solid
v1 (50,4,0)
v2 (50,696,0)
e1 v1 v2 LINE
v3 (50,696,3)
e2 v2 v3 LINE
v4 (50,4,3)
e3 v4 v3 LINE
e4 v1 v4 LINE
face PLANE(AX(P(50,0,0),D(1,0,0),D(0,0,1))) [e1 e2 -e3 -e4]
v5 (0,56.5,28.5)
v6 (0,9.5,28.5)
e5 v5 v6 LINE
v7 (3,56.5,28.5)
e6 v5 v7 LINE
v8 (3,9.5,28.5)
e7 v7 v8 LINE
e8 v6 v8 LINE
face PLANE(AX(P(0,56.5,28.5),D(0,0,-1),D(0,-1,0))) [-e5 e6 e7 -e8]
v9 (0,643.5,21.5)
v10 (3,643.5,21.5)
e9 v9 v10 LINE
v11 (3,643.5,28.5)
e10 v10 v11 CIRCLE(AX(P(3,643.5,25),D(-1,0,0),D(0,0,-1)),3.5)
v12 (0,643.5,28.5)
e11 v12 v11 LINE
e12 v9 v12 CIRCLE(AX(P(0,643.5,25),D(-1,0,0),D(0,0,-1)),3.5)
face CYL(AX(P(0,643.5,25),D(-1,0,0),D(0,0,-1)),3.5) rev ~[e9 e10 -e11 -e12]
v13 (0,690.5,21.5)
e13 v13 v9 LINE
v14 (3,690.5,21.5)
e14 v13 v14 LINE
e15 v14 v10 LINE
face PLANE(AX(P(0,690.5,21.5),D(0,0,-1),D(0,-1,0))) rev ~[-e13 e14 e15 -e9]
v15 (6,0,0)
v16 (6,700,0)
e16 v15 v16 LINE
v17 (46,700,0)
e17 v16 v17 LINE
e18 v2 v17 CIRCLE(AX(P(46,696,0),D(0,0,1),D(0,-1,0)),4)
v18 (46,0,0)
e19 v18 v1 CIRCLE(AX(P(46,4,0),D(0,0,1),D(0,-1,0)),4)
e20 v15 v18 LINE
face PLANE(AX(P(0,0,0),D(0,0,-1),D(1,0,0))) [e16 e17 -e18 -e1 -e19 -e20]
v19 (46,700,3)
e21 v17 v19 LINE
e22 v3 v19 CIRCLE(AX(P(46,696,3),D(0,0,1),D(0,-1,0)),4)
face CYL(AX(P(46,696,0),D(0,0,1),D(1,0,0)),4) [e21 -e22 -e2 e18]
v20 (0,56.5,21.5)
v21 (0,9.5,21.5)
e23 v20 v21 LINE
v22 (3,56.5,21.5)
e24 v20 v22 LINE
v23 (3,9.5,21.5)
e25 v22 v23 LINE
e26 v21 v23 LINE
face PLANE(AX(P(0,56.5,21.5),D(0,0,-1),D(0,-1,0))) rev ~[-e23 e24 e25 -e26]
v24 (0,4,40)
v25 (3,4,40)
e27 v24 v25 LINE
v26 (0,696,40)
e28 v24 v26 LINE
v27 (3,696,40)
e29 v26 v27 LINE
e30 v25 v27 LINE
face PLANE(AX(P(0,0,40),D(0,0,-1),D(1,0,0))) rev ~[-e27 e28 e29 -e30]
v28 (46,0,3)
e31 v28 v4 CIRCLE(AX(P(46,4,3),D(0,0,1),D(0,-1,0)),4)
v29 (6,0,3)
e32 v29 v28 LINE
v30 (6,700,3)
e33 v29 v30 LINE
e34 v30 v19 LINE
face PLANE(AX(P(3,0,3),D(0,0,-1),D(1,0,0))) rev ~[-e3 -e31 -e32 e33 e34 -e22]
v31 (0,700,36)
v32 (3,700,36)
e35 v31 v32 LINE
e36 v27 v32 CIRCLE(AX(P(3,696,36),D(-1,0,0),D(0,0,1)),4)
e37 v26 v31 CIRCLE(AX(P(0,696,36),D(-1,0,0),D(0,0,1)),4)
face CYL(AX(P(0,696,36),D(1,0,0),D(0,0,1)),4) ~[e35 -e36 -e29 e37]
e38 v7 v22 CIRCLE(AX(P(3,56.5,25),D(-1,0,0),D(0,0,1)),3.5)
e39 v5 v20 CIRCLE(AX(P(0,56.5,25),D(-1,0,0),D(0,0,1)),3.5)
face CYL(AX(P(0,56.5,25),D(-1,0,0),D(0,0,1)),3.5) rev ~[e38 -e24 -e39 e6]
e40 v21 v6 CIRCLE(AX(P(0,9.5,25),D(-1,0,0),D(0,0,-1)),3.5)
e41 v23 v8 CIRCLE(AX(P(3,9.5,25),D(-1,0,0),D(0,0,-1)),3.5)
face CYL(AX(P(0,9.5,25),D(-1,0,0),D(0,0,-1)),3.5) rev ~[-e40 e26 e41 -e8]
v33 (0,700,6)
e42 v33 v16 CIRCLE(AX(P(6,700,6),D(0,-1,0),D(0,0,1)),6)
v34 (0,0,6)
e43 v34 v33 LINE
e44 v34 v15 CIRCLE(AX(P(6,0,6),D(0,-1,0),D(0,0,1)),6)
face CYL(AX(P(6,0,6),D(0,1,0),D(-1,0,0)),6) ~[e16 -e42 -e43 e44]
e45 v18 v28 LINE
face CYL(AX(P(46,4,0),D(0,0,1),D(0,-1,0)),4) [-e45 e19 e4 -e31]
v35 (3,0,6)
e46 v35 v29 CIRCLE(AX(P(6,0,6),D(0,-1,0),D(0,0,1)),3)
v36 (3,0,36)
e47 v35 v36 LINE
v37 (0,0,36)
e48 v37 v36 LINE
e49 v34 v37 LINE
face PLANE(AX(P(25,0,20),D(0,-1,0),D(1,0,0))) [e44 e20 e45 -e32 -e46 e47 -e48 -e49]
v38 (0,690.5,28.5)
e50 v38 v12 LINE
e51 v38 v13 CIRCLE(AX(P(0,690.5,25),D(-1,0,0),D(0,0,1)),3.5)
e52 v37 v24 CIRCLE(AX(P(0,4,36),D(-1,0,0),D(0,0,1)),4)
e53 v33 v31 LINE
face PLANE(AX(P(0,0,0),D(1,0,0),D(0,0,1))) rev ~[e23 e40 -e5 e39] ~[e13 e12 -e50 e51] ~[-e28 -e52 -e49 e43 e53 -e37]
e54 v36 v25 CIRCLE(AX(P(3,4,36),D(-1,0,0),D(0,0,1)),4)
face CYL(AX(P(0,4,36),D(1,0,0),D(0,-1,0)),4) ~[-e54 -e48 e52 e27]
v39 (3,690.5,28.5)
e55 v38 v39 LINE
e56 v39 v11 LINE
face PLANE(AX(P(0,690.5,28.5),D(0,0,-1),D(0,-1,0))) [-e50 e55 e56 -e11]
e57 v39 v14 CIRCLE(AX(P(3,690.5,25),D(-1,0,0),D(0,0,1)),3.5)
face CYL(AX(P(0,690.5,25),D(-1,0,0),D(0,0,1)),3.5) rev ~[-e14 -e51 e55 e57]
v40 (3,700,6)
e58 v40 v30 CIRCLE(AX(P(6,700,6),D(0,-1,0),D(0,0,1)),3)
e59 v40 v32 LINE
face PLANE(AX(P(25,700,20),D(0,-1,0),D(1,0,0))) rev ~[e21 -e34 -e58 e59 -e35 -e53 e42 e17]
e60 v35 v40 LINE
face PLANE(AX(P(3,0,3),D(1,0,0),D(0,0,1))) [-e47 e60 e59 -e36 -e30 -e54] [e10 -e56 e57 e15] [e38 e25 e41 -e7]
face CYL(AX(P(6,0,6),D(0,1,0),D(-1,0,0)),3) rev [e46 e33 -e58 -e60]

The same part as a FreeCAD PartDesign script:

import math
import FreeCAD as App
import Part
import Sketcher


def edges_at(feature, points):
    """Names of the edges that pass closest to the given points."""
    edges = feature.Shape.Edges
    near = lambda p: min(range(len(edges)), key=lambda i: edges[i].distToShape(Part.Vertex(*p))[0])
    return sorted({f"Edge{near(p) + 1}" for p in points})


def add_polygon(sketch, points):
    """Adds a closed chain of lines whose ends are joined by coincident constraints."""
    first, n = sketch.GeometryCount, len(points)
    for a, b in zip(points, points[1:] + points[:1]):
        sketch.addGeometry(Part.LineSegment(App.Vector(*a, 0), App.Vector(*b, 0)), False)
    for i in range(n):
        sketch.addConstraint(Sketcher.Constraint("Coincident", first + i, 2, first + (i + 1) % n, 1))

doc = App.newDocument("Part")
params = doc.addObject("Spreadsheet::Sheet", "Params")
for row, (alias, value) in enumerate([
    ("sketch1_width", "50 mm"),
    ("sketch1_height", "40 mm"),
    ("pad1_length", "700 mm"),
    ("sketch2_width", "47 mm"),
    ("sketch2_height", "37 mm"),
    ("pocket1_length", "700 mm"),
    ("fillet_radius", "6 mm"),
    ("fillet2_radius", "3 mm"),
    ("fillet3_radius", "4 mm"),
    ("fillet4_radius", "4 mm"),
    ("fillet5_radius", "4 mm"),
    ("fillet6_radius", "4 mm"),
    ("sketch3_radius", "3.5 mm"),
    ("sketch3_width", "47 mm"),
    ("pocket2_length", "3 mm"),
    ("sketch4_radius", "3.5 mm"),
    ("sketch4_width", "47 mm"),
    ("pocket3_length", "3 mm"),
], start=1):
    params.set(f"A{row}", alias)
    params.set(f"B{row}", "=" + value)
    params.setAlias(f"B{row}", alias)

body = doc.addObject("PartDesign::Body", "Body")

# Sketch on XZ plane
sketch1 = body.newObject("Sketcher::SketchObject", "Sketch")
sketch1.AttachmentSupport = (doc.getObject("XZ_Plane"), [""])
sketch1.MapMode = "FlatFace"
add_polygon(sketch1, [(0, 40), (0, 0), (50, 0), (50, 40)])  # lines 0-3
sketch1.addConstraint([
    Sketcher.Constraint("Vertical", 0),
    Sketcher.Constraint("Horizontal", 1),
    Sketcher.Constraint("Vertical", 2),
    Sketcher.Constraint("Horizontal", 3),
    Sketcher.Constraint("Coincident", 0, 2, -1, 1),
    Sketcher.Constraint("DistanceX", 1, 1, 1, 2, 50.0),
    Sketcher.Constraint("DistanceY", 0, 2, 0, 1, 40.0),
])
sketch1.setExpression("Constraints[9]", "Params.sketch1_width")
sketch1.setExpression("Constraints[10]", "Params.sketch1_height")
pad1 = body.newObject("PartDesign::Pad", "Pad")
pad1.Profile = sketch1
pad1.setExpression("Length", "Params.pad1_length")
pad1.Reversed = True

# Sketch on XZ plane
sketch2 = body.newObject("Sketcher::SketchObject", "Sketch001")
sketch2.AttachmentSupport = (doc.getObject("XZ_Plane"), [""])
sketch2.MapMode = "FlatFace"
add_polygon(sketch2, [(3, 40), (3, 3), (50, 3), (50, 40)])  # lines 0-3
sketch2.addConstraint([
    Sketcher.Constraint("Vertical", 0),
    Sketcher.Constraint("Horizontal", 1),
    Sketcher.Constraint("Vertical", 2),
    Sketcher.Constraint("Horizontal", 3),
    Sketcher.Constraint("DistanceX", 1, 1, 1, 2, 47.0),
    Sketcher.Constraint("DistanceY", 0, 2, 0, 1, 37.0),
    Sketcher.Constraint("DistanceX", -1, 1, 0, 2, 3.0),
    Sketcher.Constraint("DistanceY", -1, 1, 0, 2, 3.0),
])
sketch2.setExpression("Constraints[8]", "Params.sketch2_width")
sketch2.setExpression("Constraints[9]", "Params.sketch2_height")
pocket1 = body.newObject("PartDesign::Pocket", "Pocket")
pocket1.Profile = sketch2
pocket1.setExpression("Length", "Params.pocket1_length")
doc.recompute()

fillet = body.newObject("PartDesign::Fillet", "Fillet")
fillet.Base = (pocket1, edges_at(pocket1, [(0, 350, 0)]))
fillet.setExpression("Radius", "Params.fillet_radius")
doc.recompute()

fillet2 = body.newObject("PartDesign::Fillet", "Fillet001")
fillet2.Base = (fillet, edges_at(fillet, [(3, 350, 3)]))
fillet2.setExpression("Radius", "Params.fillet2_radius")
doc.recompute()

fillet3 = body.newObject("PartDesign::Fillet", "Fillet002")
fillet3.Base = (fillet2, edges_at(fillet2, [(1.5, 0, 40)]))
fillet3.setExpression("Radius", "Params.fillet3_radius")
doc.recompute()

fillet4 = body.newObject("PartDesign::Fillet", "Fillet003")
fillet4.Base = (fillet3, edges_at(fillet3, [(1.5, 700, 40)]))
fillet4.setExpression("Radius", "Params.fillet4_radius")
doc.recompute()

fillet5 = body.newObject("PartDesign::Fillet", "Fillet004")
fillet5.Base = (fillet4, edges_at(fillet4, [(50, 0, 1.5)]))
fillet5.setExpression("Radius", "Params.fillet5_radius")
doc.recompute()

fillet6 = body.newObject("PartDesign::Fillet", "Fillet005")
fillet6.Base = (fillet5, edges_at(fillet5, [(50, 700, 1.5)]))
fillet6.setExpression("Radius", "Params.fillet6_radius")

# Sketch on YZ plane
sketch3 = body.newObject("Sketcher::SketchObject", "Sketch002")
sketch3.AttachmentSupport = (doc.getObject("YZ_Plane"), [""])
sketch3.MapMode = "FlatFace"
sketch3.addGeometry([
    Part.LineSegment(App.Vector(690.5, 21.5, 0), App.Vector(643.5, 21.5, 0)),
    Part.ArcOfCircle(Part.Circle(App.Vector(643.5, 25, 0), App.Vector(0, 0, 1), 3.5), math.radians(90), math.radians(270)),
    Part.LineSegment(App.Vector(643.5, 28.5, 0), App.Vector(690.5, 28.5, 0)),
    Part.ArcOfCircle(Part.Circle(App.Vector(690.5, 25, 0), App.Vector(0, 0, 1), 3.5), math.radians(-90), math.radians(90)),
], False)
sketch3.addConstraint([
    Sketcher.Constraint("Tangent", 0, 2, 1, 2),
    Sketcher.Constraint("Tangent", 1, 1, 2, 1),
    Sketcher.Constraint("Tangent", 2, 2, 3, 2),
    Sketcher.Constraint("Tangent", 3, 1, 0, 1),
    Sketcher.Constraint("Horizontal", 0),
    Sketcher.Constraint("Horizontal", 2),
    Sketcher.Constraint("Radius", 1, 3.5),
    Sketcher.Constraint("DistanceX", 0, 2, 0, 1, 47.0),
    Sketcher.Constraint("DistanceY", -1, 1, 1, 3, 25.0),
    Sketcher.Constraint("DistanceX", -1, 1, 1, 3, 643.5),
])
sketch3.setExpression("Constraints[6]", "Params.sketch3_radius")
sketch3.setExpression("Constraints[7]", "Params.sketch3_width")
pocket2 = body.newObject("PartDesign::Pocket", "Pocket001")
pocket2.Profile = sketch3
pocket2.setExpression("Length", "Params.pocket2_length")
pocket2.Reversed = True

# Sketch on YZ plane
sketch4 = body.newObject("Sketcher::SketchObject", "Sketch003")
sketch4.AttachmentSupport = (doc.getObject("YZ_Plane"), [""])
sketch4.MapMode = "FlatFace"
sketch4.addGeometry([
    Part.LineSegment(App.Vector(9.5, 28.5, 0), App.Vector(56.5, 28.5, 0)),
    Part.ArcOfCircle(Part.Circle(App.Vector(56.5, 25, 0), App.Vector(0, 0, 1), 3.5), math.radians(-90), math.radians(90)),
    Part.LineSegment(App.Vector(56.5, 21.5, 0), App.Vector(9.5, 21.5, 0)),
    Part.ArcOfCircle(Part.Circle(App.Vector(9.5, 25, 0), App.Vector(0, 0, 1), 3.5), math.radians(90), math.radians(270)),
], False)
sketch4.addConstraint([
    Sketcher.Constraint("Tangent", 0, 2, 1, 2),
    Sketcher.Constraint("Tangent", 1, 1, 2, 1),
    Sketcher.Constraint("Tangent", 2, 2, 3, 2),
    Sketcher.Constraint("Tangent", 3, 1, 0, 1),
    Sketcher.Constraint("Horizontal", 0),
    Sketcher.Constraint("Horizontal", 2),
    Sketcher.Constraint("Radius", 1, 3.5),
    Sketcher.Constraint("DistanceX", 0, 1, 0, 2, 47.0),
    Sketcher.Constraint("DistanceY", -1, 1, 1, 3, 25.0),
    Sketcher.Constraint("DistanceX", -1, 1, 1, 3, 56.5),
])
sketch4.setExpression("Constraints[6]", "Params.sketch4_radius")
sketch4.setExpression("Constraints[7]", "Params.sketch4_width")
pocket3 = body.newObject("PartDesign::Pocket", "Pocket002")
pocket3.Profile = sketch4
pocket3.setExpression("Length", "Params.pocket3_length")
pocket3.Reversed = True

doc.recompute()
